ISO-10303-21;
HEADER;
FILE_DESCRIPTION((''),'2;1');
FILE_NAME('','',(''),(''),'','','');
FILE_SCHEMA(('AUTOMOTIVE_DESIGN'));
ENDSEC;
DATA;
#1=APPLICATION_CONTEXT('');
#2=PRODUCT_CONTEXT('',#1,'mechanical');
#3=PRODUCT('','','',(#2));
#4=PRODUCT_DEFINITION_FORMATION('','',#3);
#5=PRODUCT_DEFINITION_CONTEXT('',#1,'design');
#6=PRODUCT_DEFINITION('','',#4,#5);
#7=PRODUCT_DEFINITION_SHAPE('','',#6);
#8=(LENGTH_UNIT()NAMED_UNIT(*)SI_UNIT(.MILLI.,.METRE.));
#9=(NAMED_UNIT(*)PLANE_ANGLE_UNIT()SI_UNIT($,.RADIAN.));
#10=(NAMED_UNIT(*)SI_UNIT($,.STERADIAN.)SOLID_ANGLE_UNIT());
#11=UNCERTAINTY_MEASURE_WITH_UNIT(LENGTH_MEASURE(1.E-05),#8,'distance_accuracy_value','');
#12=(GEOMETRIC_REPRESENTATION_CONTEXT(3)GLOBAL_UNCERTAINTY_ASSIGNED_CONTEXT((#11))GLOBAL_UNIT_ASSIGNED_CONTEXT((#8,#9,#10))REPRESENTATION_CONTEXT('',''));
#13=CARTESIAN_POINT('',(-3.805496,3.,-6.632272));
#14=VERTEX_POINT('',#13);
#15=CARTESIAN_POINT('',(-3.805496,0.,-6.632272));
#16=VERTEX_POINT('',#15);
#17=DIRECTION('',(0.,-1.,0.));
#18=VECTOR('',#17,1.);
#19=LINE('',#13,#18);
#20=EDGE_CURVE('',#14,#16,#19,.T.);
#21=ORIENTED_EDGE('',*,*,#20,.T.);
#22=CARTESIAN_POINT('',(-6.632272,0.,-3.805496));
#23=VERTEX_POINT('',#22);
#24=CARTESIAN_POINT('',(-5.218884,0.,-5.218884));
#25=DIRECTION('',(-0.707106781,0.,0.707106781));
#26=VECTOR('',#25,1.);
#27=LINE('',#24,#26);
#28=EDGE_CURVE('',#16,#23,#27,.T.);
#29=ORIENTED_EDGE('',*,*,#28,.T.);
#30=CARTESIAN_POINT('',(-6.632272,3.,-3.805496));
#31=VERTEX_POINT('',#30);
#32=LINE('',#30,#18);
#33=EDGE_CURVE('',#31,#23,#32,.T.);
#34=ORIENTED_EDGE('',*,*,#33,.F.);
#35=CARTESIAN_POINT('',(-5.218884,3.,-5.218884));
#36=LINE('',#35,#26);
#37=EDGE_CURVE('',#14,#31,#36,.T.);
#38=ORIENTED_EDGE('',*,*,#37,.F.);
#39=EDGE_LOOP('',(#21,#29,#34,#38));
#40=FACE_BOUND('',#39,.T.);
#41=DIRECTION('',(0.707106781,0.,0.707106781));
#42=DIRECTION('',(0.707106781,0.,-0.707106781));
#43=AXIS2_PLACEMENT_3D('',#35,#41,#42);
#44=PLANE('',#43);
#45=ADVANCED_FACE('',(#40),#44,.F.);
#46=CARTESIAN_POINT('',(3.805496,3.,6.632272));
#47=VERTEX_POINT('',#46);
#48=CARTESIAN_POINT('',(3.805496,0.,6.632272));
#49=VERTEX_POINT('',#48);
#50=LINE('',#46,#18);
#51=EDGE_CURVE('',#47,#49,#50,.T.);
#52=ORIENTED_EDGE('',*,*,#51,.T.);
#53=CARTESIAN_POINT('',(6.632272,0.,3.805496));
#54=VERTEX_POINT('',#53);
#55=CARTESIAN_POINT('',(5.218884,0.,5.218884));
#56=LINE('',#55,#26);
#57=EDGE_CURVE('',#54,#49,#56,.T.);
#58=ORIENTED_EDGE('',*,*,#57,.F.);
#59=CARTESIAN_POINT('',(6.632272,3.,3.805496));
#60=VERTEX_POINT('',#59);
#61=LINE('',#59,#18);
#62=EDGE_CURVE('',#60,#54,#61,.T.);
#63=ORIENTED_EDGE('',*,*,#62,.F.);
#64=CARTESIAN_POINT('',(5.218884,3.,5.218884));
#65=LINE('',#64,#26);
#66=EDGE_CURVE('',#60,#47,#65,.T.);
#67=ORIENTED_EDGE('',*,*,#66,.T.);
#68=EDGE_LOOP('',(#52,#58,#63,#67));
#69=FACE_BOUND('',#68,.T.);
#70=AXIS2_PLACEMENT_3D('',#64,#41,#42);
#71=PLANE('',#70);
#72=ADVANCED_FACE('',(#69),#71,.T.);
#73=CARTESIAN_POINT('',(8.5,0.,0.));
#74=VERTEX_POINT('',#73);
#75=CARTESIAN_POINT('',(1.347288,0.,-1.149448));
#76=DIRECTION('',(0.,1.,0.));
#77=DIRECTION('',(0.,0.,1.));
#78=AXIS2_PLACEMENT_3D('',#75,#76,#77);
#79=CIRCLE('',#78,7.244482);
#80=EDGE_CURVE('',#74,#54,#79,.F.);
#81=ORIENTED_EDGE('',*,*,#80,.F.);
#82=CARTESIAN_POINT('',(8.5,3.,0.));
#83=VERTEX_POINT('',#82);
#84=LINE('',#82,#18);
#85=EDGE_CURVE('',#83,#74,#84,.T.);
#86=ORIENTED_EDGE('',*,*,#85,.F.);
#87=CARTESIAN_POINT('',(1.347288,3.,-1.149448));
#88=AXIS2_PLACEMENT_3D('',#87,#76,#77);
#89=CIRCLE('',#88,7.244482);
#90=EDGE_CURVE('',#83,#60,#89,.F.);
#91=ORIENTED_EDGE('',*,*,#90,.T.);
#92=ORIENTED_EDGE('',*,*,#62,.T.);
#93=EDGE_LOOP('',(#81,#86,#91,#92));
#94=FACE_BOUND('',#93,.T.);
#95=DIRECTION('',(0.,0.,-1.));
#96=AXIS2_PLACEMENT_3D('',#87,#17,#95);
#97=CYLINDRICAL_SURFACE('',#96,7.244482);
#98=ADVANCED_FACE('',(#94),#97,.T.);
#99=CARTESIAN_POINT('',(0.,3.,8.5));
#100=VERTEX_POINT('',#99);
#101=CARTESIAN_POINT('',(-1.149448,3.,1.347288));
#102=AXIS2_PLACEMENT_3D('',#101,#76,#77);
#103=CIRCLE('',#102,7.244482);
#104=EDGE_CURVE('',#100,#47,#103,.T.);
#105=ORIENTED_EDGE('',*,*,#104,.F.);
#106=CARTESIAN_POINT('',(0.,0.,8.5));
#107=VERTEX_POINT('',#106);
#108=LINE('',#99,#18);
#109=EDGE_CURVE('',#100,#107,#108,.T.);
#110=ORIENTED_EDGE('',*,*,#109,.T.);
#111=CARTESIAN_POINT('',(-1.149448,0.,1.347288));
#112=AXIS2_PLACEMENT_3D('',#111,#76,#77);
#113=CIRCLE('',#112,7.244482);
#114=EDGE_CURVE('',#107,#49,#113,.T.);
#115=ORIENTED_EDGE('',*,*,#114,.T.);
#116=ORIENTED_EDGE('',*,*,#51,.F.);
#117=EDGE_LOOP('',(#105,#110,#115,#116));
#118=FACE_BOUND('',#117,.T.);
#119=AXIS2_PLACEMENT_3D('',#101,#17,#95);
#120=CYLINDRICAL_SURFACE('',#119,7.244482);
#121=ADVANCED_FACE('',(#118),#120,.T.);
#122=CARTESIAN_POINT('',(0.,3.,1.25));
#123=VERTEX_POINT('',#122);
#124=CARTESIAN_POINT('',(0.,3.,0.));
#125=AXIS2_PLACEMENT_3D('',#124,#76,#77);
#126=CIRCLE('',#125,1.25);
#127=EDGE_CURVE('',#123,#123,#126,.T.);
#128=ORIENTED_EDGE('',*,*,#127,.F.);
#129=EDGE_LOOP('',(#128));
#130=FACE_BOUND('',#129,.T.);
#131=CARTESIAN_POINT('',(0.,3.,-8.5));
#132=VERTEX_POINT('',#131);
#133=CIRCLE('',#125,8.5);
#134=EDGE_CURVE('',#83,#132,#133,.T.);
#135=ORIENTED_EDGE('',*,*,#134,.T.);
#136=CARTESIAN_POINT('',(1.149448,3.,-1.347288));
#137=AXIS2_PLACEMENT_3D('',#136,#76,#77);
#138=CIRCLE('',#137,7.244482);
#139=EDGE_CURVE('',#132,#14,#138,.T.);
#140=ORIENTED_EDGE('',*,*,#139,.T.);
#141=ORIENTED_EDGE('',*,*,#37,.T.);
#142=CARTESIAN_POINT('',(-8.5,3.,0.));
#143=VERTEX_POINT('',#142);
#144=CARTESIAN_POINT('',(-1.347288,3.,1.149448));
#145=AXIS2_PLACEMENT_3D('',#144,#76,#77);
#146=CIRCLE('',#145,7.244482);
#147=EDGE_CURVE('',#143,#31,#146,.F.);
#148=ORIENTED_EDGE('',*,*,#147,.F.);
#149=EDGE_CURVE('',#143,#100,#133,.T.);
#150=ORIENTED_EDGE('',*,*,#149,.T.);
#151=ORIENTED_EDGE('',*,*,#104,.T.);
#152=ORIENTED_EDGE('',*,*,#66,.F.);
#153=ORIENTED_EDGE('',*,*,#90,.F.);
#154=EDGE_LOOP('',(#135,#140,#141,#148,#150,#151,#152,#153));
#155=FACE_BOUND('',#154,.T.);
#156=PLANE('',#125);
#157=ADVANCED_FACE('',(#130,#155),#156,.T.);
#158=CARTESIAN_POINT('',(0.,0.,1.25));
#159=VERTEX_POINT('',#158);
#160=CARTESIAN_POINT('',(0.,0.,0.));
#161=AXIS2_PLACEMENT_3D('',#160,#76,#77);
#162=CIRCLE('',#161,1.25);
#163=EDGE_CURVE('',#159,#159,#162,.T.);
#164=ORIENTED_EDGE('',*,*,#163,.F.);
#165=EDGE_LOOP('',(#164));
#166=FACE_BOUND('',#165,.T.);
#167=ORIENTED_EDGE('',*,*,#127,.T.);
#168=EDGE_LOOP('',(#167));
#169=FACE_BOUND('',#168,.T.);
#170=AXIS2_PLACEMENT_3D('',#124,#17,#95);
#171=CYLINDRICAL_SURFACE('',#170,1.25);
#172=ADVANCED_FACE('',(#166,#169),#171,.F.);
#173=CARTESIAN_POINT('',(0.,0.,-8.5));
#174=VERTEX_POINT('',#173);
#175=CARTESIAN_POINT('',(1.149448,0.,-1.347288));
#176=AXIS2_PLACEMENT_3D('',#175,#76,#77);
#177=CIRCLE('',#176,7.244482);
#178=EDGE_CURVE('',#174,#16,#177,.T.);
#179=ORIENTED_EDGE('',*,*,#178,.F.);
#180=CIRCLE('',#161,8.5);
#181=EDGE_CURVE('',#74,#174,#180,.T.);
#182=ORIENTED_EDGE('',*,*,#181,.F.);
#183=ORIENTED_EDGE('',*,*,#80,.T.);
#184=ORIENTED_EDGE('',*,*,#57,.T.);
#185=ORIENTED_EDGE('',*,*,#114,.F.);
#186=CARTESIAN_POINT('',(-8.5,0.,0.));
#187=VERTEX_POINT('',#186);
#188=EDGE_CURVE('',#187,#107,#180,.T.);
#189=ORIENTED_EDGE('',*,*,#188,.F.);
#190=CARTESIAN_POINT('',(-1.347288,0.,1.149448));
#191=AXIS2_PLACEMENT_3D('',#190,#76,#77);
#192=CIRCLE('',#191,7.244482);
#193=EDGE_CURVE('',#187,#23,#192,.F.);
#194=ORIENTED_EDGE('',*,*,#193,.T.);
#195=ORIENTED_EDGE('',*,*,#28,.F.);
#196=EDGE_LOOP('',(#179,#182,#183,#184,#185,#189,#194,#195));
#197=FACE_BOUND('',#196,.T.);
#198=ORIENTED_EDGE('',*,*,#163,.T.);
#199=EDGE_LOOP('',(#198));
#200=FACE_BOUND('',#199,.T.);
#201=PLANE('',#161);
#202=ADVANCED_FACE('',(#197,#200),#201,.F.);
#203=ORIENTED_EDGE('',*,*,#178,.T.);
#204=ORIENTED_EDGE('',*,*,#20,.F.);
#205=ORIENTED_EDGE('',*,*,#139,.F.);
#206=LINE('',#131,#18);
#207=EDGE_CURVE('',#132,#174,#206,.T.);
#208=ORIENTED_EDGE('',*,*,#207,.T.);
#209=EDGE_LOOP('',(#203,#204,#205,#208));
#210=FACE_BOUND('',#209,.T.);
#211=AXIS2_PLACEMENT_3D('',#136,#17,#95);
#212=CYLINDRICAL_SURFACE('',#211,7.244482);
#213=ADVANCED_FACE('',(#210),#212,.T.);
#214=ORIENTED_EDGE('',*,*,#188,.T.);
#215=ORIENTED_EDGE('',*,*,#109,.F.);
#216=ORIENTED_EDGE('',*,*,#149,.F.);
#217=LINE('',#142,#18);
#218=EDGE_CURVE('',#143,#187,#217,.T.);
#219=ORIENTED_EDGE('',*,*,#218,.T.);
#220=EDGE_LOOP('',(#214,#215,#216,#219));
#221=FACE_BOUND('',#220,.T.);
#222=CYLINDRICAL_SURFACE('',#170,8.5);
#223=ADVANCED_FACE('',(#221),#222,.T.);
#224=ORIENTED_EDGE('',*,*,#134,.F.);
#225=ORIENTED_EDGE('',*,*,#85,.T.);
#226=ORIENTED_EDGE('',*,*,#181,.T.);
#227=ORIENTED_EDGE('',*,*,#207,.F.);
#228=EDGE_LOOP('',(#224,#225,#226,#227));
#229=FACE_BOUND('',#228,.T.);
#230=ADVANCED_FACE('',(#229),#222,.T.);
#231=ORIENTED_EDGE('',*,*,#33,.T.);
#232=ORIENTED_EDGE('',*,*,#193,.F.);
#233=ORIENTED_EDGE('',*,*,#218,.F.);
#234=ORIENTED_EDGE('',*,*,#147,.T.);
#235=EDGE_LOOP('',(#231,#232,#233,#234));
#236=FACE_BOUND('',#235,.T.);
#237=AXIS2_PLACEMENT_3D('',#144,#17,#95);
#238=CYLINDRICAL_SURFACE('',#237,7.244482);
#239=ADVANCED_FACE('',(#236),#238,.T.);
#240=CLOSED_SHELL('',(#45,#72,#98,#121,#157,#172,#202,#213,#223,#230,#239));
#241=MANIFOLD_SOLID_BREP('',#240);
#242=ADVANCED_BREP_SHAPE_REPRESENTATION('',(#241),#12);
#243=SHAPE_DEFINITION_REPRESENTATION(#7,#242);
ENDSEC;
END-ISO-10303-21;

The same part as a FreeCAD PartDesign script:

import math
import FreeCAD as App
import Part
import Sketcher

V = App.Vector
Q = App.Units.Quantity

doc = App.newDocument("Part")
body = doc.addObject("PartDesign::Body", "Body")

# Sketch on XZ plane
sketch1 = doc.addObject("Sketcher::SketchObject", "Sketch")
body.addObject(sketch1)
sketch1.AttachmentSupport = (doc.XZ_Plane, [""])
sketch1.MapMode = "FlatFace"
sketch1.addGeometry(Part.LineSegment(V(6.3, 4.14, 0), V(6.63, 3.81, 0)), False)
sketch1.addGeometry(Part.ArcOfCircle(Part.Circle(V(1.35, -1.15, 0), V(0, 0, 1), 7.24), math.radians(9), math.radians(43)), False)
sketch1.addGeometry(Part.ArcOfCircle(Part.Circle(V(0, 0, 0), V(0, 0, 1), 8.5), math.radians(-90), math.radians(0)), False)
sketch1.addGeometry(Part.ArcOfCircle(Part.Circle(V(1.15, -1.35, 0), V(0, 0, 1), 7.24), math.radians(-133), math.radians(-99)), False)
sketch1.addGeometry(Part.LineSegment(V(-3.81, -6.63, 0), V(-4.14, -6.3, 0)), False)
sketch1.addGeometry(Part.LineSegment(V(-4.14, -6.3, 0), V(-6.3, -4.14, 0)), False)
sketch1.addGeometry(Part.LineSegment(V(-6.3, -4.14, 0), V(-6.63, -3.81, 0)), False)
sketch1.addGeometry(Part.ArcOfCircle(Part.Circle(V(-1.35, 1.15, 0), V(0, 0, 1), 7.24), math.radians(-171), math.radians(-137)), False)
sketch1.addGeometry(Part.ArcOfCircle(Part.Circle(V(0, 0, 0), V(0, 0, 1), 8.5), math.radians(90), math.radians(180)), False)
sketch1.addGeometry(Part.ArcOfCircle(Part.Circle(V(-1.15, 1.35, 0), V(0, 0, 1), 7.24), math.radians(47), math.radians(81)), False)
sketch1.addGeometry(Part.LineSegment(V(3.81, 6.63, 0), V(4.14, 6.3, 0)), False)
sketch1.addGeometry(Part.LineSegment(V(4.14, 6.3, 0), V(6.3, 4.14, 0)), False)
sketch1.addGeometry(Part.Circle(V(0, 0, 0), V(0, 0, 1), 1.25), False)
sketch1.addConstraint(Sketcher.Constraint("Coincident", 0, 2, 1, 2))
sketch1.addConstraint(Sketcher.Constraint("Coincident", 1, 1, 2, 2))
sketch1.addConstraint(Sketcher.Constraint("Coincident", 2, 1, 3, 2))
sketch1.addConstraint(Sketcher.Constraint("Coincident", 3, 1, 4, 1))
sketch1.addConstraint(Sketcher.Constraint("Coincident", 4, 2, 5, 1))
sketch1.addConstraint(Sketcher.Constraint("Coincident", 5, 2, 6, 1))
sketch1.addConstraint(Sketcher.Constraint("Coincident", 6, 2, 7, 2))
sketch1.addConstraint(Sketcher.Constraint("Coincident", 7, 1, 8, 2))
sketch1.addConstraint(Sketcher.Constraint("Coincident", 8, 1, 9, 2))
sketch1.addConstraint(Sketcher.Constraint("Coincident", 9, 1, 10, 1))
sketch1.addConstraint(Sketcher.Constraint("Coincident", 10, 2, 11, 1))
sketch1.addConstraint(Sketcher.Constraint("Coincident", 11, 2, 0, 1))
sketch1.addConstraint(Sketcher.Constraint("Coincident", 2, 3, -1, 1))
sketch1.addConstraint(Sketcher.Constraint("Coincident", 8, 3, -1, 1))
sketch1.addConstraint(Sketcher.Constraint("Coincident", 12, 3, -1, 1))
sketch1.addConstraint(Sketcher.Constraint("Equal", 1, 3))
sketch1.addConstraint(Sketcher.Constraint("Equal", 3, 7))
sketch1.addConstraint(Sketcher.Constraint("Equal", 2, 8))
sketch1.addConstraint(Sketcher.Constraint("Equal", 7, 9))
sketch1.addConstraint(Sketcher.Constraint("Symmetric", 1, 3, 7, 3, -1, 1))
sketch1.addConstraint(Sketcher.Constraint("Symmetric", 3, 3, 9, 3, -1, 1))
sketch1.addConstraint(Sketcher.Constraint("Symmetric", 4, 2, 10, 2, -1, 1))
sketch1.addConstraint(Sketcher.Constraint("Symmetric", 5, 2, 11, 2, -1, 1))
sketch1.addConstraint(Sketcher.Constraint("PointOnObject", 1, 1, -1))
sketch1.addConstraint(Sketcher.Constraint("PointOnObject", 2, 1, -2))
sketch1.addConstraint(Sketcher.Constraint("Parallel", 0, 4))
sketch1.addConstraint(Sketcher.Constraint("Parallel", 4, 5))
sketch1.addConstraint(Sketcher.Constraint("Parallel", 5, 6))
sketch1.addConstraint(Sketcher.Constraint("Parallel", 6, 10))
sketch1.addConstraint(Sketcher.Constraint("Equal", 0, 4))
sketch1.addConstraint(Sketcher.Constraint("Diameter", 12, Q("2.5 mm")))
sketch1.addConstraint(Sketcher.Constraint("Radius", 2, Q("8.5 mm")))
sketch1.addConstraint(Sketcher.Constraint("Angle", 0, Q("-45 deg")))
sketch1.addConstraint(Sketcher.Constraint("Radius", 1, Q("7.244482 mm")))
sketch1.addConstraint(Sketcher.Constraint("Distance", 5, Q("3.064171 mm")))
sketch1.addConstraint(Sketcher.Constraint("DistanceX", -1, 1, 1, 3, Q("1.347288 mm")))
sketch1.addConstraint(Sketcher.Constraint("DistanceY", 3, 3, -1, 1, Q("1.347288 mm")))
sketch1.addConstraint(Sketcher.Constraint("DistanceX", -1, 1, 0, 2, Q("6.632272 mm")))
pad1 = doc.addObject("PartDesign::Pad", "Pad")
body.addObject(pad1)
pad1.Profile = sketch1
pad1.Length = 3
pad1.Reversed = True

doc.recompute()
